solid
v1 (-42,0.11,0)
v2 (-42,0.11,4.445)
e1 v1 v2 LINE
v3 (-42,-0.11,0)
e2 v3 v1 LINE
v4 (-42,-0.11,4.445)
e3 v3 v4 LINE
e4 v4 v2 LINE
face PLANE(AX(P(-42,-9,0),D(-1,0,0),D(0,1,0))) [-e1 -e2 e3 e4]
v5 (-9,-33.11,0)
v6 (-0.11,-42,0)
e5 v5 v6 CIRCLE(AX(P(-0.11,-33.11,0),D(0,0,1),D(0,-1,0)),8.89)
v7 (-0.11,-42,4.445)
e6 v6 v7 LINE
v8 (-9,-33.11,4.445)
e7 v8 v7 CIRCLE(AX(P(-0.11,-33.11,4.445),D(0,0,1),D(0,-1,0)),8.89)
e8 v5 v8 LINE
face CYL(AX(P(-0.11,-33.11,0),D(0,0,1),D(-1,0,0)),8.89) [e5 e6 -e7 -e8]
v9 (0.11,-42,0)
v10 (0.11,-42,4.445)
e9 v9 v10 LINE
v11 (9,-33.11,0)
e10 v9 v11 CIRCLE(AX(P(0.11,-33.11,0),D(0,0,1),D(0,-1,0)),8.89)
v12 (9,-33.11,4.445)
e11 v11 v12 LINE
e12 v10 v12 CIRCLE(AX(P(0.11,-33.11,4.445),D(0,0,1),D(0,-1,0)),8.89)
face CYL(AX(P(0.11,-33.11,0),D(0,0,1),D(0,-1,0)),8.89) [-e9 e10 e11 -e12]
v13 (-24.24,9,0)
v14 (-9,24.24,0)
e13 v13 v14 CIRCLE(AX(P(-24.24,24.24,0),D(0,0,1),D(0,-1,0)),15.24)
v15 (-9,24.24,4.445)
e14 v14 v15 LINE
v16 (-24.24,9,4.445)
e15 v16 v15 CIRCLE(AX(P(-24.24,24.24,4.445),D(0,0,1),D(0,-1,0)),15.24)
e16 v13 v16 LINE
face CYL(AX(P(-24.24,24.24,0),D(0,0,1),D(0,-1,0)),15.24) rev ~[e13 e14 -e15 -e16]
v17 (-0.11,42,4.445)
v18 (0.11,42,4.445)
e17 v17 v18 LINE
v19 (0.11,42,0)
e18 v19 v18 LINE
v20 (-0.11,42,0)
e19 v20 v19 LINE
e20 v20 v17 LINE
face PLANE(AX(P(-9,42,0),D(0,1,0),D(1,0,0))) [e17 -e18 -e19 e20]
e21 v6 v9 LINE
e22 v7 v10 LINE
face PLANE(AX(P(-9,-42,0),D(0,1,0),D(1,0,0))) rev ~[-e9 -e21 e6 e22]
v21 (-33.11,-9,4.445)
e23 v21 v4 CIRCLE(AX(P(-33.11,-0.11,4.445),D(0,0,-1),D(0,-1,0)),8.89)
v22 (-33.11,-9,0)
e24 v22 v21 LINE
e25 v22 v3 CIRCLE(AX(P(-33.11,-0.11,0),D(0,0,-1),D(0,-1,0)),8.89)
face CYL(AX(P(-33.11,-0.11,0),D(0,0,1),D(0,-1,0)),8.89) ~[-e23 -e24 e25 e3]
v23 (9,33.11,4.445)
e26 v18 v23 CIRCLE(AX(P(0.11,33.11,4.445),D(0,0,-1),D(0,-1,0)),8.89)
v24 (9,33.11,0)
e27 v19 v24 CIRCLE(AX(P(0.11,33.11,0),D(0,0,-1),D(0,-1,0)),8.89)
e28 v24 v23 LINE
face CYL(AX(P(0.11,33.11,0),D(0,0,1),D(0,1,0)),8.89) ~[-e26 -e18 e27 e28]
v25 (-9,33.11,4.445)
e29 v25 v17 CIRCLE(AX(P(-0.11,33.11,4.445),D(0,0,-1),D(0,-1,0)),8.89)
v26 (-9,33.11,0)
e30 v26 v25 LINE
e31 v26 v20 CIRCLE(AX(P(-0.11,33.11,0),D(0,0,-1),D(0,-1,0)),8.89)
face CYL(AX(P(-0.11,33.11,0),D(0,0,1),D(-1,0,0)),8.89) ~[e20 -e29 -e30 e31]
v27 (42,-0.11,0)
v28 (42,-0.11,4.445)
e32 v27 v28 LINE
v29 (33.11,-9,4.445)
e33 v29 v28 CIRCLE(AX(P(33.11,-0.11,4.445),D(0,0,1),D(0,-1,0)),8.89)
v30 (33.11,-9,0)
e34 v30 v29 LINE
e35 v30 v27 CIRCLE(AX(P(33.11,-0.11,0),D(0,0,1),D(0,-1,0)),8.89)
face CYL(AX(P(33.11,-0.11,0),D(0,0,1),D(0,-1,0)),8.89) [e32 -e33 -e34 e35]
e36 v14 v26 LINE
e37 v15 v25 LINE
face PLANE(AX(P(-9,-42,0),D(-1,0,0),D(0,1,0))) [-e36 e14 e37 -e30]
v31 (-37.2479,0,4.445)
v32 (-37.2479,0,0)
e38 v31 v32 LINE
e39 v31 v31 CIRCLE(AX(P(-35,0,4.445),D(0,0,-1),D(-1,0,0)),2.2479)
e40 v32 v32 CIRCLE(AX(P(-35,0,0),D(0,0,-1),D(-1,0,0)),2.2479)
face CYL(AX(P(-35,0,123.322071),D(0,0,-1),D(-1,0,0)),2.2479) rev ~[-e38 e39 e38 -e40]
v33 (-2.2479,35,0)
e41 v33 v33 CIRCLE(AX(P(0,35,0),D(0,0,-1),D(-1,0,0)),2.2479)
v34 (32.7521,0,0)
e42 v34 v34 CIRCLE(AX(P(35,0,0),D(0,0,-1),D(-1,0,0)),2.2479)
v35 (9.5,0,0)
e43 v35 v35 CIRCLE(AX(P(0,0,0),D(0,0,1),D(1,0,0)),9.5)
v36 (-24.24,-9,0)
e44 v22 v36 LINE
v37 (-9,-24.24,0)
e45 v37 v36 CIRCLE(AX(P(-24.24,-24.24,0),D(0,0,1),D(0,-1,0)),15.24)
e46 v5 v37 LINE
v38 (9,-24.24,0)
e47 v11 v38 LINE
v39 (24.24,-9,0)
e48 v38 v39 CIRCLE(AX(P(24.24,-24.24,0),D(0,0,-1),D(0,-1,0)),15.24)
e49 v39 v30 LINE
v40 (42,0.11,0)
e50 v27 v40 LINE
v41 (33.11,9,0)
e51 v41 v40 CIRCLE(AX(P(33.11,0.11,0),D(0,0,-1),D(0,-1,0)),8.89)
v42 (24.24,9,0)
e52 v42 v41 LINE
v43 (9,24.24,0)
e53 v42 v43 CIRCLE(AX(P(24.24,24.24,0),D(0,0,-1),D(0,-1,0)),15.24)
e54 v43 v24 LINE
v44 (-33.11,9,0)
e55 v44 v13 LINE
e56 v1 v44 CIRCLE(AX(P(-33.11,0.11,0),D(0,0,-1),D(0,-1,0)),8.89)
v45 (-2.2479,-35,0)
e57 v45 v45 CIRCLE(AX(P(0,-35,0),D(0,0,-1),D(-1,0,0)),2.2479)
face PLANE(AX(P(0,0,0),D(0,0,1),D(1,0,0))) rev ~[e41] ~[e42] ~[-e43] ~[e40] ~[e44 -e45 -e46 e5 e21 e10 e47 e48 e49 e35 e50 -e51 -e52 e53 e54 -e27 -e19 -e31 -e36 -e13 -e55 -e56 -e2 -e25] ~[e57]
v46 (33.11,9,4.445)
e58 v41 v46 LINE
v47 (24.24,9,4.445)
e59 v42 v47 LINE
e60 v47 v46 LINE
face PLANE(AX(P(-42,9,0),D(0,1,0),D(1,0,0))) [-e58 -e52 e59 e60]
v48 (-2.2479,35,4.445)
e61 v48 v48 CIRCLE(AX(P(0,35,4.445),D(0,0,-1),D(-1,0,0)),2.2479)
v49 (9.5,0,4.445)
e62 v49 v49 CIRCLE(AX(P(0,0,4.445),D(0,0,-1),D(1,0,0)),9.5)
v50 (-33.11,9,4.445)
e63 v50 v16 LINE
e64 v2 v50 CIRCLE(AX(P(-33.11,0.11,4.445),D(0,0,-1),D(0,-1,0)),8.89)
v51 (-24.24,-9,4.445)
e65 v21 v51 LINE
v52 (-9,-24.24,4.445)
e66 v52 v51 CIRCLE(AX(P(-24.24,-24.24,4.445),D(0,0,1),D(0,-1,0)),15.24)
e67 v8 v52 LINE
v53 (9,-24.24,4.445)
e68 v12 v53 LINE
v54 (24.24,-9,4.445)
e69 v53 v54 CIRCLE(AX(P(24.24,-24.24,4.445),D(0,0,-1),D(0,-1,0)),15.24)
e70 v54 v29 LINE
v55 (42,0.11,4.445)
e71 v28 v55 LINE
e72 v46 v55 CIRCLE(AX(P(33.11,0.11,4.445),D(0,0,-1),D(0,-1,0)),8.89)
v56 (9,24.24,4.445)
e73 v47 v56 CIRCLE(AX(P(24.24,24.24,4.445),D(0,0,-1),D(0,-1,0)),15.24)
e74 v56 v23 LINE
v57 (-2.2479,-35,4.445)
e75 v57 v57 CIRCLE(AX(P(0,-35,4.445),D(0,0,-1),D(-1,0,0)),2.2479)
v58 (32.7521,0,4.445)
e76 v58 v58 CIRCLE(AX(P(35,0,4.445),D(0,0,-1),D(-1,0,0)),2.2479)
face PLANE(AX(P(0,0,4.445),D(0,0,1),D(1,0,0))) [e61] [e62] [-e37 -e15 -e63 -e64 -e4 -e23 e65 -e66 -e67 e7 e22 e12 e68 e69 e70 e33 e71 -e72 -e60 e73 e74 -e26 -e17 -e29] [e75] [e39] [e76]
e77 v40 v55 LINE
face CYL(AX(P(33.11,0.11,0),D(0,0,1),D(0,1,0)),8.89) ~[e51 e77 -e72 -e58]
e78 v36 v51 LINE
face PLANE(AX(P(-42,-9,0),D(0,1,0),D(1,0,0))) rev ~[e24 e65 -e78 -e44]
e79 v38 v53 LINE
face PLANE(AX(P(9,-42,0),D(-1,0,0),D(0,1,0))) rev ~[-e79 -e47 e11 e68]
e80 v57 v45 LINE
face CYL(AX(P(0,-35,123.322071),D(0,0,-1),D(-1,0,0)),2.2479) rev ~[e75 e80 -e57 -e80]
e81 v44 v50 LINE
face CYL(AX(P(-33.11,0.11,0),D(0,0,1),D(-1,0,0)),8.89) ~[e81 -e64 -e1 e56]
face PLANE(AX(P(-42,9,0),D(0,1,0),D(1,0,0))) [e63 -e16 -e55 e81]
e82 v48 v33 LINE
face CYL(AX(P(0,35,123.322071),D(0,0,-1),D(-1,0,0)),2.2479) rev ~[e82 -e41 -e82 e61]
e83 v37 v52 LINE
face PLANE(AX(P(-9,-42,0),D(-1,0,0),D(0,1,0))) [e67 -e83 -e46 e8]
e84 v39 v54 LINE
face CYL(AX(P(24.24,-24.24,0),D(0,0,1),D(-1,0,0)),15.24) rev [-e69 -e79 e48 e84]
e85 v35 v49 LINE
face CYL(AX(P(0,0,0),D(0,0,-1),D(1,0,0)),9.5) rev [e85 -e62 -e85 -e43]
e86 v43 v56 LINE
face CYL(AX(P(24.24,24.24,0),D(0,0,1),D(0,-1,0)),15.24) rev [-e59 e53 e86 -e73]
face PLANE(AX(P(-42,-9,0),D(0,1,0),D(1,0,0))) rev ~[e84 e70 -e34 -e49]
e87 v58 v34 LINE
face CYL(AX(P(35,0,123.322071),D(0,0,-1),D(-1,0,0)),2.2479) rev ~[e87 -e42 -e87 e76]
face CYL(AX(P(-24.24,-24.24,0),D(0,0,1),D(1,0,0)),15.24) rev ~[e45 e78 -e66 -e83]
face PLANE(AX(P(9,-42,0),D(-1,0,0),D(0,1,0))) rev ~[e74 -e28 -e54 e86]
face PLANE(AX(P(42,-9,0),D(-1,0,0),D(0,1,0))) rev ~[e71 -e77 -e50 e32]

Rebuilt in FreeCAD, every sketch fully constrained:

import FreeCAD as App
import Part
import Sketcher
Q = App.Units.Quantity


def edges_at(feature, points):
    """Names of the edges that pass closest to the given points."""
    edges = feature.Shape.Edges
    near = lambda p: min(range(len(edges)), key=lambda i: edges[i].distToShape(Part.Vertex(*p))[0])
    return sorted({f"Edge{near(p) + 1}" for p in points})

doc = App.newDocument("Part")
body = doc.addObject("PartDesign::Body", "Body")

sketch1 = body.newObject("Sketcher::SketchObject", "Sketch")
sketch1.AttachmentSupport = (doc.getObject("XY_Plane"), [""])
sketch1.MapMode = "FlatFace"
sketch1.addGeometry(Part.LineSegment(App.Vector(-42, 9, 0), App.Vector(-42, -9, 0)), False)
sketch1.addGeometry(Part.LineSegment(App.Vector(-42, -9, 0), App.Vector(42, -9, 0)), False)
sketch1.addGeometry(Part.LineSegment(App.Vector(42, -9, 0), App.Vector(42, 9, 0)), False)
sketch1.addGeometry(Part.LineSegment(App.Vector(42, 9, 0), App.Vector(-42, 9, 0)), False)
sketch1.addConstraint(Sketcher.Constraint("Coincident", 0, 2, 1, 1))
sketch1.addConstraint(Sketcher.Constraint("Coincident", 1, 2, 2, 1))
sketch1.addConstraint(Sketcher.Constraint("Coincident", 2, 2, 3, 1))
sketch1.addConstraint(Sketcher.Constraint("Coincident", 3, 2, 0, 1))
sketch1.addConstraint(Sketcher.Constraint("Vertical", 0))
sketch1.addConstraint(Sketcher.Constraint("Horizontal", 1))
sketch1.addConstraint(Sketcher.Constraint("Vertical", 2))
sketch1.addConstraint(Sketcher.Constraint("Horizontal", 3))
sketch1.addConstraint(Sketcher.Constraint("Symmetric", 0, 2, 2, 2, -1, 1))
sketch1.addConstraint(Sketcher.Constraint("DistanceX", 1, 1, 1, 2, Q("84 mm")))
sketch1.addConstraint(Sketcher.Constraint("DistanceY", 0, 2, 0, 1, Q("18 mm")))
pad1 = body.newObject("PartDesign::Pad", "Pad")
pad1.Profile = sketch1
pad1.Length = Q("0.175 in")

sketch2 = body.newObject("Sketcher::SketchObject", "Sketch001")
sketch2.AttachmentSupport = (doc.getObject("XY_Plane"), [""])
sketch2.MapMode = "FlatFace"
sketch2.addGeometry(Part.LineSegment(App.Vector(-9, 42, 0), App.Vector(-9, -42, 0)), False)
sketch2.addGeometry(Part.LineSegment(App.Vector(-9, -42, 0), App.Vector(9, -42, 0)), False)
sketch2.addGeometry(Part.LineSegment(App.Vector(9, -42, 0), App.Vector(9, 42, 0)), False)
sketch2.addGeometry(Part.LineSegment(App.Vector(9, 42, 0), App.Vector(-9, 42, 0)), False)
sketch2.addConstraint(Sketcher.Constraint("Coincident", 0, 2, 1, 1))
sketch2.addConstraint(Sketcher.Constraint("Coincident", 1, 2, 2, 1))
sketch2.addConstraint(Sketcher.Constraint("Coincident", 2, 2, 3, 1))
sketch2.addConstraint(Sketcher.Constraint("Coincident", 3, 2, 0, 1))
sketch2.addConstraint(Sketcher.Constraint("Vertical", 0))
sketch2.addConstraint(Sketcher.Constraint("Horizontal", 1))
sketch2.addConstraint(Sketcher.Constraint("Vertical", 2))
sketch2.addConstraint(Sketcher.Constraint("Horizontal", 3))
sketch2.addConstraint(Sketcher.Constraint("Symmetric", 0, 2, 2, 2, -1, 1))
sketch2.addConstraint(Sketcher.Constraint("DistanceX", 1, 1, 1, 2, Q("18 mm")))
sketch2.addConstraint(Sketcher.Constraint("DistanceY", 0, 2, 0, 1, Q("84 mm")))
pad2 = body.newObject("PartDesign::Pad", "Pad001")
pad2.Profile = sketch2
pad2.Type = "UpToLast"
doc.recompute()

fillet = body.newObject("PartDesign::Fillet", "Fillet")
fillet.Base = (pad2, edges_at(pad2, [
    (9, -42, 2.223),
    (-9, -42, 2.223),
    (42, -9, 2.223),
    (42, 9, 2.223),
    (9, 42, 2.223),
    (-42, -9, 2.223),
    (-42, 9, 2.223),
    (-9, 42, 2.223),
]))
fillet.Radius = Q("0.35 in")

sketch3 = body.newObject("Sketcher::SketchObject", "Sketch002")
sketch3.AttachmentSupport = (doc.getObject("XY_Plane"), [""])
sketch3.MapMode = "FlatFace"
sketch3.AttachmentOffset = App.Placement(App.Vector(0, 0, 0.175 * 25.4), App.Rotation())
sketch3.addGeometry(Part.Circle(App.Vector(35, 0, 0), App.Vector(0, 0, 1), 2.2479), False)
sketch3.addGeometry(Part.Circle(App.Vector(0, -35, 0), App.Vector(0, 0, 1), 2.2479), False)
sketch3.addGeometry(Part.Circle(App.Vector(-35, 0, 0), App.Vector(0, 0, 1), 2.2479), False)
sketch3.addGeometry(Part.Circle(App.Vector(0, 35, 0), App.Vector(0, 0, 1), 2.2479), False)
sketch3.addConstraint(Sketcher.Constraint("Equal", 0, 1))
sketch3.addConstraint(Sketcher.Constraint("Equal", 1, 2))
sketch3.addConstraint(Sketcher.Constraint("Equal", 2, 3))
sketch3.addConstraint(Sketcher.Constraint("Symmetric", 0, 3, 2, 3, -1, 1))
sketch3.addConstraint(Sketcher.Constraint("Symmetric", 1, 3, 3, 3, -1, 1))
sketch3.addConstraint(Sketcher.Constraint("PointOnObject", 0, 3, -1))
sketch3.addConstraint(Sketcher.Constraint("PointOnObject", 1, 3, -2))
sketch3.addConstraint(Sketcher.Constraint("Diameter", 0, Q("0.177 in")))
sketch3.addConstraint(Sketcher.Constraint("DistanceX", -1, 1, 0, 3, Q("35 mm")))
sketch3.addConstraint(Sketcher.Constraint("DistanceY", 1, 3, -1, 1, Q("35 mm")))
doc.recompute()
hole = body.newObject("PartDesign::Hole", "Hole")
hole.Profile = sketch3
hole.ThreadType = "None"
hole.Diameter = Q("0.177 in")
hole.DepthType = "ThroughAll"

sketch4 = body.newObject("Sketcher::SketchObject", "Sketch003")
sketch4.AttachmentSupport = (doc.getObject("XY_Plane"), [""])
sketch4.MapMode = "FlatFace"
sketch4.addGeometry(Part.Circle(App.Vector(0, 0, 0), App.Vector(0, 0, 1), 9.5), False)
sketch4.addConstraint(Sketcher.Constraint("Coincident", 0, 3, -1, 1))
sketch4.addConstraint(Sketcher.Constraint("Diameter", 0, Q("19 mm")))
pocket1 = body.newObject("PartDesign::Pocket", "Pocket")
pocket1.Profile = sketch4
pocket1.Type = "ThroughAll"
pocket1.Reversed = True
doc.recompute()

fillet2 = body.newObject("PartDesign::Fillet", "Fillet001")
fillet2.Base = (pocket1, edges_at(pocket1, [
    (9, 9, 2.223),
    (9, -9, 2.223),
    (-9, -9, 2.223),
    (-9, 9, 2.223),
]))
fillet2.Radius = Q("0.6 in")

doc.recompute()
